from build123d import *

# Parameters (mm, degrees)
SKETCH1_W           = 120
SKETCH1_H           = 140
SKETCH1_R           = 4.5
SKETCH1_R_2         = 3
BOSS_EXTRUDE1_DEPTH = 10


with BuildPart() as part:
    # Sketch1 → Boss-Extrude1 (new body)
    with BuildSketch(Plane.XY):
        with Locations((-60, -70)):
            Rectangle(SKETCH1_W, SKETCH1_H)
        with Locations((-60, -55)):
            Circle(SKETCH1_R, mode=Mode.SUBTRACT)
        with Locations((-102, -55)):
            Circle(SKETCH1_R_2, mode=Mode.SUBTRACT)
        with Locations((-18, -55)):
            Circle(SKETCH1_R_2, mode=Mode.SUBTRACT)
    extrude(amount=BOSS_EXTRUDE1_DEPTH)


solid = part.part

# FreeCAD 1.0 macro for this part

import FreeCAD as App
import Part
import Sketcher

V = App.Vector
Q = App.Units.Quantity


def add_polygon(sketch, points):
    """Adds a closed chain of lines whose ends are joined by coincident constraints."""
    first, n = sketch.GeometryCount, len(points)
    for a, b in zip(points, points[1:] + points[:1]):
        sketch.addGeometry(Part.LineSegment(App.Vector(*a, 0), App.Vector(*b, 0)), False)
    for i in range(n):
        sketch.addConstraint(Sketcher.Constraint("Coincident", first + i, 2, first + (i + 1) % n, 1))

doc = App.newDocument("Part")
params = doc.addObject("Spreadsheet::Sheet", "Params")
for row, (alias, value) in enumerate([
    ("sketch1_diameter", "6 mm"),
    ("sketch1_diameter2", "9 mm"),
    ("sketch1_width", "120 mm"),
    ("sketch1_height", "140 mm"),
    ("pad1_length", "10 mm"),
], start=1):
    params.set(f"A{row}", alias)
    params.set(f"B{row}", "=" + value)
    params.setAlias(f"B{row}", alias)

body = doc.addObject("PartDesign::Body", "Body")

sketch1 = doc.addObject("Sketcher::SketchObject", "Sketch")
body.addObject(sketch1)
sketch1.AttachmentSupport = (doc.XY_Plane, [""])
sketch1.MapMode = "FlatFace"
add_polygon(sketch1, [(-120, 0), (-120, -140), (0, -140), (0, 0)])
sketch1.addGeometry(Part.Circle(V(-102, -55, 0), V(0, 0, 1), 3), False)
sketch1.addGeometry(Part.Circle(V(-60, -55, 0), V(0, 0, 1), 4.5), False)
sketch1.addGeometry(Part.Circle(V(-18, -55, 0), V(0, 0, 1), 3), False)
sketch1.addConstraint([
    Sketcher.Constraint("Vertical", 0),
    Sketcher.Constraint("Horizontal", 1),
    Sketcher.Constraint("Vertical", 2),
    Sketcher.Constraint("Horizontal", 3),
    Sketcher.Constraint("Coincident", 2, 2, -1, 1),
    Sketcher.Constraint("Equal", 4, 6),
    Sketcher.Constraint("Horizontal", 4, 3, 5, 3),
    Sketcher.Constraint("Horizontal", 5, 3, 6, 3),
    Sketcher.Constraint("Diameter", 4, Q("6 mm")),
    Sketcher.Constraint("Diameter", 5, Q("9 mm")),
    Sketcher.Constraint("DistanceX", 1, 1, 1, 2, Q("120 mm")),
    Sketcher.Constraint("DistanceY", 0, 2, 0, 1, Q("140 mm")),
    Sketcher.Constraint("DistanceX", 4, 3, -1, 1, Q("102 mm")),
    Sketcher.Constraint("DistanceY", 4, 3, -1, 1, Q("55 mm")),
    Sketcher.Constraint("DistanceX", 5, 3, -1, 1, Q("60 mm")),
    Sketcher.Constraint("DistanceX", 6, 3, -1, 1, Q("18 mm")),
])
sketch1.setExpression("Constraints[12]", "Params.sketch1_diameter")
sketch1.setExpression("Constraints[13]", "Params.sketch1_diameter2")
sketch1.setExpression("Constraints[14]", "Params.sketch1_width")
sketch1.setExpression("Constraints[15]", "Params.sketch1_height")
pad1 = doc.addObject("PartDesign::Pad", "Pad")
body.addObject(pad1)
pad1.Profile = sketch1
pad1.setExpression("Length", "Params.pad1_length")

doc.recompute()
